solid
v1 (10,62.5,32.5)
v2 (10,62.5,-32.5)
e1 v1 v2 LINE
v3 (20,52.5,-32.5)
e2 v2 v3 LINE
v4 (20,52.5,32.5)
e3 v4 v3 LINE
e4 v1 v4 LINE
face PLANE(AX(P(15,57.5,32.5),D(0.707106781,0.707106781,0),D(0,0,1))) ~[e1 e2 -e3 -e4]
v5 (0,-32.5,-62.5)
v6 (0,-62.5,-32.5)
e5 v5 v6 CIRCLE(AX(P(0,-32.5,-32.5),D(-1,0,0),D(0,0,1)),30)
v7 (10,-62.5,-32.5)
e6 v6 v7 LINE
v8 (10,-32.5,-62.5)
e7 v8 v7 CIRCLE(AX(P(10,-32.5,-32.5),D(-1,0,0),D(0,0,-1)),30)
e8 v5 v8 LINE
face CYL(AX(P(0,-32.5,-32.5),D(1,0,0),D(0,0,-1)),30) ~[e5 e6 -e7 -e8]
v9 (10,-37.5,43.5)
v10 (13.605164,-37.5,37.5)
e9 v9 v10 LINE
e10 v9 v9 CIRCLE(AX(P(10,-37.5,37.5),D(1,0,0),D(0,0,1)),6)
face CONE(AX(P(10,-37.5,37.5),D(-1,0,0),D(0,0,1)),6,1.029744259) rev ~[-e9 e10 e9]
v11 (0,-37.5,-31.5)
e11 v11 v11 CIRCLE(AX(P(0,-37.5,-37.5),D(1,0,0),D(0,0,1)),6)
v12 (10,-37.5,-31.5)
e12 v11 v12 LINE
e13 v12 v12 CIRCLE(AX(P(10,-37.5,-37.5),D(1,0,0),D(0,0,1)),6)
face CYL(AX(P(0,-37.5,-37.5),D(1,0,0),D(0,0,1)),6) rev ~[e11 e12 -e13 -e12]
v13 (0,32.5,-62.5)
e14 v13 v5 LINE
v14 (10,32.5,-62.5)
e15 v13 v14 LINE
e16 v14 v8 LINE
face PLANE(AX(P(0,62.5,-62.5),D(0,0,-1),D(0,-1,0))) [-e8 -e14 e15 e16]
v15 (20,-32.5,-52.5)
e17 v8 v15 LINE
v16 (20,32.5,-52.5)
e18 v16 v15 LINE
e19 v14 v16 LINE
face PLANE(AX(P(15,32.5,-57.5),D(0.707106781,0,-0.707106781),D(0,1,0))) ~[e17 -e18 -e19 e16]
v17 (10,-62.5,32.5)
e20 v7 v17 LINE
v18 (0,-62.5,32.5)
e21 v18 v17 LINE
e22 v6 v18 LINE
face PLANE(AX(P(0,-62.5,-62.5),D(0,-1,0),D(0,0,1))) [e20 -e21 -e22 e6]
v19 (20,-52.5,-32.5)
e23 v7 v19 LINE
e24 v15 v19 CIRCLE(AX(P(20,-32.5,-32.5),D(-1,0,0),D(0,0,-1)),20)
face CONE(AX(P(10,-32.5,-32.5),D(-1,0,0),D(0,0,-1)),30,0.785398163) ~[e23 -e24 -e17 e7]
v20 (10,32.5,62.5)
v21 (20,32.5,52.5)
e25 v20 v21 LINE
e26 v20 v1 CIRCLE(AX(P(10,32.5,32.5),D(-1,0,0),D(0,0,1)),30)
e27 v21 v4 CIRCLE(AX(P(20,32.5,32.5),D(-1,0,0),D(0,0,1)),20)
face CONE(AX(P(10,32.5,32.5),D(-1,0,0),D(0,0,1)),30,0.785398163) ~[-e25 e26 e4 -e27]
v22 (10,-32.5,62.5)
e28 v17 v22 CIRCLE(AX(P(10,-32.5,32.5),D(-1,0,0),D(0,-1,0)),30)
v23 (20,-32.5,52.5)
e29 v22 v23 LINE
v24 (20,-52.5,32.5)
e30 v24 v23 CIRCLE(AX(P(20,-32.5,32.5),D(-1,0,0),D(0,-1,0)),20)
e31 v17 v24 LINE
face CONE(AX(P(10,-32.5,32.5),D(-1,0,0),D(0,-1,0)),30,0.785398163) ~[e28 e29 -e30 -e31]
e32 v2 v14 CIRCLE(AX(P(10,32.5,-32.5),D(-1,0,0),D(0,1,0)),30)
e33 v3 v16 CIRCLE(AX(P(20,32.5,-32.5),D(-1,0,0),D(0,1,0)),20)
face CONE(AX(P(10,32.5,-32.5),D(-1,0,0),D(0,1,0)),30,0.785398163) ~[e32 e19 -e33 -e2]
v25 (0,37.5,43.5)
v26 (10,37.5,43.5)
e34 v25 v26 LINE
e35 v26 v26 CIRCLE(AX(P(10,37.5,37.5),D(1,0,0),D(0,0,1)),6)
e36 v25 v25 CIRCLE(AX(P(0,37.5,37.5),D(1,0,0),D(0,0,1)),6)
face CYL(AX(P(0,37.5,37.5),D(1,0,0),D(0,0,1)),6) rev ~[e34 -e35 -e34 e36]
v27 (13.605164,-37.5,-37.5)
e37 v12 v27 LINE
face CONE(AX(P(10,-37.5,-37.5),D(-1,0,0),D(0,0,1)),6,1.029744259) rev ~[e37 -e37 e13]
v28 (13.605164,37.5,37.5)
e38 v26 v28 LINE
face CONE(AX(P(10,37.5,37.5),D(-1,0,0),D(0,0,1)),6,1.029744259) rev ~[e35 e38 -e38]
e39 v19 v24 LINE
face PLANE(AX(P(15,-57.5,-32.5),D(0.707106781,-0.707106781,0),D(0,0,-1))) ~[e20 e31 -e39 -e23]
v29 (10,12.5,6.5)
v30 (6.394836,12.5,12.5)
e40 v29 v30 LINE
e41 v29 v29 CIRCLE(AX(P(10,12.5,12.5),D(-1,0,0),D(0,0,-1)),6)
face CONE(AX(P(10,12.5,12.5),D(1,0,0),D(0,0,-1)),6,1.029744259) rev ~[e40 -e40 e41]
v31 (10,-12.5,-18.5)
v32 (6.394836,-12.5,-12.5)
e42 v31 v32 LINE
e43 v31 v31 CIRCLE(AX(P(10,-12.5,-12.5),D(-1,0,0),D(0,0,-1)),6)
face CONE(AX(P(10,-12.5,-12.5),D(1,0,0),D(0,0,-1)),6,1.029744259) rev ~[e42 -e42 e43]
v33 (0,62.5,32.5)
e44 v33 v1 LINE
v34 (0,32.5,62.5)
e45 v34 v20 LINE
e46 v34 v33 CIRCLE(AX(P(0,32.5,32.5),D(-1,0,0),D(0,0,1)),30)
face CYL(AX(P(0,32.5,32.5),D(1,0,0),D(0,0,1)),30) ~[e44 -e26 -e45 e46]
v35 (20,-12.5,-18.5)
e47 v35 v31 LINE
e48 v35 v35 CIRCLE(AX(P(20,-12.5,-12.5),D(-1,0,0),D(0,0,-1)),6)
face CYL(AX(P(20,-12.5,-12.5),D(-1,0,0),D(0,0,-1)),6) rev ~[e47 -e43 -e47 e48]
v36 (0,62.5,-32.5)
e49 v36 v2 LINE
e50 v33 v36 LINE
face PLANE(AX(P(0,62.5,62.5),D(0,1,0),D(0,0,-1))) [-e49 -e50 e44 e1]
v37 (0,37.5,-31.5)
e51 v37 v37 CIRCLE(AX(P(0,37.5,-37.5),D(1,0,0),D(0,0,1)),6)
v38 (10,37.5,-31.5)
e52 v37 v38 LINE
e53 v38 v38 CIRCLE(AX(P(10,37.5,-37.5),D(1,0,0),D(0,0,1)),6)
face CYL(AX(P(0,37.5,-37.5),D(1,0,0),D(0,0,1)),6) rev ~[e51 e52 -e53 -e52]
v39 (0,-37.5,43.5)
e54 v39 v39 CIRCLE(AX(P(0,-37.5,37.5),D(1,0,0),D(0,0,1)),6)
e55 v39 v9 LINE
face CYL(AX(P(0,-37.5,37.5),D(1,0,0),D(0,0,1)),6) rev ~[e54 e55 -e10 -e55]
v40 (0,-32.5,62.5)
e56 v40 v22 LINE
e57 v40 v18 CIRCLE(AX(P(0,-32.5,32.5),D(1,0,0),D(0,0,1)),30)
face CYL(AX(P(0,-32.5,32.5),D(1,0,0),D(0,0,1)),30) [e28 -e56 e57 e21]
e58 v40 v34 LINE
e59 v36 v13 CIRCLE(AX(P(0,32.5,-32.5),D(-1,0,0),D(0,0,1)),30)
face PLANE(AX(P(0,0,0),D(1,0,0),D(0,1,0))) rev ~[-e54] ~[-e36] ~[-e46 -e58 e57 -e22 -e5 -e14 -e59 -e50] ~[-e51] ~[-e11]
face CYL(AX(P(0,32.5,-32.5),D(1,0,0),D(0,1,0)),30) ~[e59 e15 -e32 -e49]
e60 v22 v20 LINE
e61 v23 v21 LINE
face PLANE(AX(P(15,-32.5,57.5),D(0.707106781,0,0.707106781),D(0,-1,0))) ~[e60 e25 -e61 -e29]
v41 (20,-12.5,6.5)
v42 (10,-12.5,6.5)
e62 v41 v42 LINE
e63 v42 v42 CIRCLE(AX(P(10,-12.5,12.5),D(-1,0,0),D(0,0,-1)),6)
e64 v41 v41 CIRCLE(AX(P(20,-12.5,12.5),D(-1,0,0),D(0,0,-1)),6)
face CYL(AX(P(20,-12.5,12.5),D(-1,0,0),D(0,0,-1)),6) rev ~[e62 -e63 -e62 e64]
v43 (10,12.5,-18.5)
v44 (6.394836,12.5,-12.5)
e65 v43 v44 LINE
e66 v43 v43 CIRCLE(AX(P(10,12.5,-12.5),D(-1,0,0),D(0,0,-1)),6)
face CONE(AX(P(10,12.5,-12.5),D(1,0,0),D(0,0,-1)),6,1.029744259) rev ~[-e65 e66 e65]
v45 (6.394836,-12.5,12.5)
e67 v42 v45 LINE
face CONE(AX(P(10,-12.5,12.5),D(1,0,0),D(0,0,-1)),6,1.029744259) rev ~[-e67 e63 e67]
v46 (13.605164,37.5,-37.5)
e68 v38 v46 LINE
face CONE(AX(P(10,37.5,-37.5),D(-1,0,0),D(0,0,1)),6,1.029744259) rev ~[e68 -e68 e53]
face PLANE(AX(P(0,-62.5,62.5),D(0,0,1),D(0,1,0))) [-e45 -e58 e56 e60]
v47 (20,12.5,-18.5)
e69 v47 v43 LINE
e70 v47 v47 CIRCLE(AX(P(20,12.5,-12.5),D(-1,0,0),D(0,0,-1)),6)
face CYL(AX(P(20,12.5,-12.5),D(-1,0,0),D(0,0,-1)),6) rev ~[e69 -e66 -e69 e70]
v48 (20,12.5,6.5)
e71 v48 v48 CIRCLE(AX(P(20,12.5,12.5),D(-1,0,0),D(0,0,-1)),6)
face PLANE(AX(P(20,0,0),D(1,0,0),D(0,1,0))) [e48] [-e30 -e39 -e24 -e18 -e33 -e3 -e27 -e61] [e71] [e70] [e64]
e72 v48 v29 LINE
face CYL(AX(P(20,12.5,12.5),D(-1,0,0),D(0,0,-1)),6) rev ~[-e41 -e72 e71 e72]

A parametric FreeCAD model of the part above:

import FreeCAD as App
import Part
import Sketcher

V = App.Vector


def edges_at(feature, points):
    """Names of the edges that pass closest to the given points."""
    edges = feature.Shape.Edges
    near = lambda p: min(range(len(edges)), key=lambda i: edges[i].distToShape(Part.Vertex(*p))[0])
    return sorted({f"Edge{near(p) + 1}" for p in points})


def add_polygon(sketch, points):
    """Adds a closed chain of lines whose ends are joined by coincident constraints."""
    first, n = sketch.GeometryCount, len(points)
    for a, b in zip(points, points[1:] + points[:1]):
        sketch.addGeometry(Part.LineSegment(App.Vector(*a, 0), App.Vector(*b, 0)), False)
    for i in range(n):
        sketch.addConstraint(Sketcher.Constraint("Coincident", first + i, 2, first + (i + 1) % n, 1))

doc = App.newDocument("Part")
body = doc.addObject("PartDesign::Body", "Body")

# Sketch on YZ plane
sketch1 = body.newObject("Sketcher::SketchObject", "Sketch")
sketch1.AttachmentSupport = (doc.getObject("YZ_Plane"), [""])
sketch1.MapMode = "FlatFace"
add_polygon(sketch1, [(62, 62), (-62, 62), (-62, -62), (62, -62)])  # lines 0-3
sketch1.addConstraint([
    Sketcher.Constraint("Horizontal", 0),
    Sketcher.Constraint("Vertical", 1),
    Sketcher.Constraint("Horizontal", 2),
    Sketcher.Constraint("Vertical", 3),
    Sketcher.Constraint("Symmetric", 0, 2, 2, 2, -1, 1),
    Sketcher.Constraint("Equal", 2, 1),
    Sketcher.Constraint("DistanceX", 0, 2, 0, 1, 125.0),
])
pad1 = body.newObject("PartDesign::Pad", "Pad")
pad1.Profile = sketch1
pad1.Length = 20
doc.recompute()

fillet = body.newObject("PartDesign::Fillet", "Fillet")
fillet.Base = (pad1, edges_at(pad1, [
    (10, 62.5, 62.5),
    (10, -62.5, 62.5),
    (10, 62.5, -62.5),
    (10, -62.5, -62.5),
]))
fillet.Radius = 30
doc.recompute()

chamfer = body.newObject("PartDesign::Chamfer", "Chamfer")
chamfer.Base = (fillet, edges_at(fillet, [
    (20, 0, 62.5),
    (20, -53.713, 53.713),
    (20, -62.5, 0),
    (20, -53.713, -53.713),
    (20, 0, -62.5),
    (20, 53.713, -53.713),
    (20, 62.5, 0),
    (20, 53.713, 53.713),
]))
chamfer.Size = 10

# Sketch on YZ plane
sketch2 = body.newObject("Sketcher::SketchObject", "Sketch001")
sketch2.AttachmentSupport = (doc.getObject("YZ_Plane"), [""])
sketch2.MapMode = "FlatFace"
sketch2.AttachmentOffset = App.Placement(V(0, 0, 20), App.Rotation())
sketch2.addGeometry([
    Part.Circle(V(12, 12, 0), V(0, 0, 1), 6),
    Part.Circle(V(12, -12, 0), V(0, 0, 1), 6),
    Part.Circle(V(-12, 12, 0), V(0, 0, 1), 6),
    Part.Circle(V(-12, -12, 0), V(0, 0, 1), 6),
], False)
sketch2.addConstraint([
    Sketcher.Constraint("Equal", 0, 1),
    Sketcher.Constraint("Equal", 1, 2),
    Sketcher.Constraint("Equal", 2, 3),
    Sketcher.Constraint("Symmetric", 1, 3, 2, 3, -1, 1),
    Sketcher.Constraint("Symmetric", 0, 3, 3, 3, -1, 1),
    Sketcher.Constraint("Symmetric", 0, 3, 2, 3, -2),
    Sketcher.Constraint("Diameter", 0, 12.0),
    Sketcher.Constraint("DistanceY", 1, 3, 0, 3, 25.0),
    Sketcher.Constraint("DistanceX", 2, 3, 0, 3, 25.0),
])
doc.recompute()
hole = body.newObject("PartDesign::Hole", "Hole")
hole.Profile = sketch2
hole.ThreadType = "None"
hole.Diameter = 12
hole.DepthType = "Dimension"
hole.Depth = 10
hole.DrillPoint = "Angled"
hole.DrillPointAngle = 118

# Sketch on YZ plane
sketch3 = body.newObject("Sketcher::SketchObject", "Sketch002")
sketch3.AttachmentSupport = (doc.getObject("YZ_Plane"), [""])
sketch3.MapMode = "FlatFace"
sketch3.addGeometry([
    Part.Circle(V(-38, 38, 0), V(0, 0, 1), 6),
    Part.Circle(V(-38, -38, 0), V(0, 0, 1), 6),
    Part.Circle(V(38, -38, 0), V(0, 0, 1), 6),
    Part.Circle(V(38, 38, 0), V(0, 0, 1), 6),
], False)
sketch3.addConstraint([
    Sketcher.Constraint("Equal", 0, 1),
    Sketcher.Constraint("Equal", 1, 2),
    Sketcher.Constraint("Equal", 2, 3),
    Sketcher.Constraint("Symmetric", 0, 3, 2, 3, -1, 1),
    Sketcher.Constraint("Symmetric", 1, 3, 3, 3, -1, 1),
    Sketcher.Constraint("Symmetric", 1, 3, 2, 3, -2),
    Sketcher.Constraint("Diameter", 0, 12.0),
    Sketcher.Constraint("DistanceY", 1, 3, 0, 3, 75.0),
    Sketcher.Constraint("DistanceX", 1, 3, 2, 3, 75.0),
])
doc.recompute()
hole2 = body.newObject("PartDesign::Hole", "Hole001")
hole2.Profile = sketch3
hole2.ThreadType = "None"
hole2.Diameter = 12
hole2.DepthType = "Dimension"
hole2.Depth = 10
hole2.DrillPoint = "Angled"
hole2.DrillPointAngle = 118
hole2.Reversed = True

doc.recompute()
